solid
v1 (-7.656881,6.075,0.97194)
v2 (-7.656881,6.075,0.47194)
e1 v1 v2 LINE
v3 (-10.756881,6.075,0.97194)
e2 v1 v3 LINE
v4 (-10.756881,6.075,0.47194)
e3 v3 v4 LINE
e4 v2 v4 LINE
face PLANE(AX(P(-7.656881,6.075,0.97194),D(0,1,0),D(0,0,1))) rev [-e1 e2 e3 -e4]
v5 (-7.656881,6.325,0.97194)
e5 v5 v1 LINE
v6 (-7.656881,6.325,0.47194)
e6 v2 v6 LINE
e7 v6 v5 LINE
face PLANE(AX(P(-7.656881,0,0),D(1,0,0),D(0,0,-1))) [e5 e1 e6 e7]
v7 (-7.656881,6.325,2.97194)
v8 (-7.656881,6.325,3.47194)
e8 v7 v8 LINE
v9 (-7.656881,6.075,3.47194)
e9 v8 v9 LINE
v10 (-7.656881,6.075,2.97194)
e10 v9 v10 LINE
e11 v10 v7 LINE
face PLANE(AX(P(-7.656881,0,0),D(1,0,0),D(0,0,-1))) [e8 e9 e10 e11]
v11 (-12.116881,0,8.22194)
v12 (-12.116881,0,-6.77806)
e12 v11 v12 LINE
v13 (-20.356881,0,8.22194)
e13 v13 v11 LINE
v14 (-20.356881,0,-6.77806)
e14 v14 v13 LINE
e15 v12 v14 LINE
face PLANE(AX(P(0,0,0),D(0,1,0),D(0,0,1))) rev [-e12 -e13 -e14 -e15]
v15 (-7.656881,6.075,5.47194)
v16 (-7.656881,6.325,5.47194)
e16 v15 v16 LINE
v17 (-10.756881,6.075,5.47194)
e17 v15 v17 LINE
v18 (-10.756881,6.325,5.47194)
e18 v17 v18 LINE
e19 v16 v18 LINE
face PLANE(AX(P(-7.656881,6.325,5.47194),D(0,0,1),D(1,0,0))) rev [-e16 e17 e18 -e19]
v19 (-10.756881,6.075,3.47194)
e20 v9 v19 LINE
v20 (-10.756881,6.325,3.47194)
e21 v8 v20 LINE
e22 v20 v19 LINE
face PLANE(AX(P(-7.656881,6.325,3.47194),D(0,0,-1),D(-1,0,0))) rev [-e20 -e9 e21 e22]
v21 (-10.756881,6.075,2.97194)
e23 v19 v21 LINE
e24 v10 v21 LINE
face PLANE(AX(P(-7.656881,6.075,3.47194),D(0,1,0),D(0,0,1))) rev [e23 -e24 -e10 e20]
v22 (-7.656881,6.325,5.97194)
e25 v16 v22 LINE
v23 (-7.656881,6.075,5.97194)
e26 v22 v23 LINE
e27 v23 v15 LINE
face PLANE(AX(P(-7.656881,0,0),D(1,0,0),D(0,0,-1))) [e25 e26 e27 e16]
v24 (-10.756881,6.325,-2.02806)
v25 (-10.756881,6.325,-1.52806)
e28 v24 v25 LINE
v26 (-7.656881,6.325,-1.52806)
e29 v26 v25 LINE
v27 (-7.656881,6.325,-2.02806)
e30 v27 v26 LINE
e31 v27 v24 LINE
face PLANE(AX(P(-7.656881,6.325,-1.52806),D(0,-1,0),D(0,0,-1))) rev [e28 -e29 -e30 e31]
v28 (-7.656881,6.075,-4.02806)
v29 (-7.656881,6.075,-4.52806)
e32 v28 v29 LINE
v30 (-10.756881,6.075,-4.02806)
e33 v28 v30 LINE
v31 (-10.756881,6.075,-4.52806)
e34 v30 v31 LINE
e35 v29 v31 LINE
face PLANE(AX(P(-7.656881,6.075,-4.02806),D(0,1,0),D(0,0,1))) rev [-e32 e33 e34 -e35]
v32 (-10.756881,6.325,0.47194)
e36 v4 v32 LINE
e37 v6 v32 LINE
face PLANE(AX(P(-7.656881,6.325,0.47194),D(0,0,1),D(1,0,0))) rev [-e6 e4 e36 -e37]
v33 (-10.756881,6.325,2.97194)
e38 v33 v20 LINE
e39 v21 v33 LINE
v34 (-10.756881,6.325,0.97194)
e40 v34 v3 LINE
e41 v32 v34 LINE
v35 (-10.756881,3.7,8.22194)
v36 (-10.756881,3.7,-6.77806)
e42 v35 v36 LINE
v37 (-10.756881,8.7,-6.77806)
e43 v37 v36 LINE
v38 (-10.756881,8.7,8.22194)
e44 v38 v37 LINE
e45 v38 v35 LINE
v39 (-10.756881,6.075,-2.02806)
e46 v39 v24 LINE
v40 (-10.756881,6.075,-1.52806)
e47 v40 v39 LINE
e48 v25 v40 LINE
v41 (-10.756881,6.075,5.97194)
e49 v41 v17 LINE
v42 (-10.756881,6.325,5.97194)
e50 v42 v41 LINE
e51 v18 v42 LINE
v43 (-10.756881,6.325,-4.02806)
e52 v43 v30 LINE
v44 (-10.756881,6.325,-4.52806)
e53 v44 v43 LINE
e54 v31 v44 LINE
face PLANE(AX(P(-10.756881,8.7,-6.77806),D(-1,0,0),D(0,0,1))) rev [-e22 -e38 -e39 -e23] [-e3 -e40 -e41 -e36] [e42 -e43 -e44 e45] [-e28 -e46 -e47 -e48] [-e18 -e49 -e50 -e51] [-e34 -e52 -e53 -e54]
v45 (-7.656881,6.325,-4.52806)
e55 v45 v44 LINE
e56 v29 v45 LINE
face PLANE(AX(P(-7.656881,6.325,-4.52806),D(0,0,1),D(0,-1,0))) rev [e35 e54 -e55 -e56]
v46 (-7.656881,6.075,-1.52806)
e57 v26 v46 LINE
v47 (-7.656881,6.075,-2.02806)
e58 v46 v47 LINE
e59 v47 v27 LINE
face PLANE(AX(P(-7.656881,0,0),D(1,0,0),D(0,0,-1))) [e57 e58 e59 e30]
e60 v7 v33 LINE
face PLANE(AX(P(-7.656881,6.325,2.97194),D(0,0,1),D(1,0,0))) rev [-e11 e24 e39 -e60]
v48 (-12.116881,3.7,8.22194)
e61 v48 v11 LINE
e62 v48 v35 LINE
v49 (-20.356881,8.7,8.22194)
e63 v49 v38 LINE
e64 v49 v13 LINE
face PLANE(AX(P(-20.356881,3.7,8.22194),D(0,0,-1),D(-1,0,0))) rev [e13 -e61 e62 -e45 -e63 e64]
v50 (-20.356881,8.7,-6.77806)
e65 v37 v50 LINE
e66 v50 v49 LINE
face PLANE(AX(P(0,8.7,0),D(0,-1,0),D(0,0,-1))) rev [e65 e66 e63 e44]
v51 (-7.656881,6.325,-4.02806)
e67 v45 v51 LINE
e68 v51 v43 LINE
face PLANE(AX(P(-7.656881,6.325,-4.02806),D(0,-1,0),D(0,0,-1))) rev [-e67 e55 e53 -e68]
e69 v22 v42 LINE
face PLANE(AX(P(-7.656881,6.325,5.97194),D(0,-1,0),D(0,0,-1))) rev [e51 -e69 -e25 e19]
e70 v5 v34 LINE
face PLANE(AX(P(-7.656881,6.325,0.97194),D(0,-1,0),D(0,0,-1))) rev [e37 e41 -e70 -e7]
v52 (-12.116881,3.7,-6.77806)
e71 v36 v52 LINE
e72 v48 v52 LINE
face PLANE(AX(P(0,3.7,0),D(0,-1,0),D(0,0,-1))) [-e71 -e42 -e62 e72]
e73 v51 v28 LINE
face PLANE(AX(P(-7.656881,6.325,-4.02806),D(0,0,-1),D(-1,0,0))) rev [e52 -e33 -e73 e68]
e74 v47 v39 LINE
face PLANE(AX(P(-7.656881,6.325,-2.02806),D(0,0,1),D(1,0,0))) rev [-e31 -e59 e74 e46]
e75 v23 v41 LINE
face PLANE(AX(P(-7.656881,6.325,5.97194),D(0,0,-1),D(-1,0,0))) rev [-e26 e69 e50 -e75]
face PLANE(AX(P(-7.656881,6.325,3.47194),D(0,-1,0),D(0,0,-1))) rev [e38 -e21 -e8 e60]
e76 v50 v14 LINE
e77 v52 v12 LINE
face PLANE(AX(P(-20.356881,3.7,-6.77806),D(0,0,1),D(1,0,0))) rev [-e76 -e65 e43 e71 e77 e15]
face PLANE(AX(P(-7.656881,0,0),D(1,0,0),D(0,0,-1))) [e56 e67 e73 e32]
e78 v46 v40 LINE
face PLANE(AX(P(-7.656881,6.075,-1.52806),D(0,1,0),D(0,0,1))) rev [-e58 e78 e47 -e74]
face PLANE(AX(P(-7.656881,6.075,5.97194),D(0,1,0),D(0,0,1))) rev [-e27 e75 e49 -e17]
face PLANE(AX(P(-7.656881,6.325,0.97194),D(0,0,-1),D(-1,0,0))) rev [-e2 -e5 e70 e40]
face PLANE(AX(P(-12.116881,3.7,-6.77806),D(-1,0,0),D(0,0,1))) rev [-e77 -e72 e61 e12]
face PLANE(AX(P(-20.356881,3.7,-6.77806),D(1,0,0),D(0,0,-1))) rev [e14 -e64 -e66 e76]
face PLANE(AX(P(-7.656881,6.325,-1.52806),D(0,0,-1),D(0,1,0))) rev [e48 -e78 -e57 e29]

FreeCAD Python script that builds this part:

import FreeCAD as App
import Part
import Sketcher
Q = App.Units.Quantity


def add_polygon(sketch, points):
    """Adds a closed chain of lines whose ends are joined by coincident constraints."""
    first, n = sketch.GeometryCount, len(points)
    for a, b in zip(points, points[1:] + points[:1]):
        sketch.addGeometry(Part.LineSegment(App.Vector(*a, 0), App.Vector(*b, 0)), False)
    for i in range(n):
        sketch.addConstraint(Sketcher.Constraint("Coincident", first + i, 2, first + (i + 1) % n, 1))

doc = App.newDocument("Part")
body = doc.addObject("PartDesign::Body", "Body")

sketch1 = doc.addObject("Sketcher::SketchObject", "Sketch")
body.addObject(sketch1)
sketch1.AttachmentSupport = (doc.XZ_Plane, [""])
sketch1.MapMode = "FlatFace"
add_polygon(sketch1, [(-20, -7), (-20, 8), (-12, 8), (-12, -7)])
sketch1.addConstraint(Sketcher.Constraint("Vertical", 0))
sketch1.addConstraint(Sketcher.Constraint("Horizontal", 1))
sketch1.addConstraint(Sketcher.Constraint("Vertical", 2))
sketch1.addConstraint(Sketcher.Constraint("Horizontal", 3))
sketch1.addConstraint(Sketcher.Constraint("DistanceY", 0, 1, 0, 2, Q("15 mm")))
sketch1.addConstraint(Sketcher.Constraint("DistanceX", 1, 1, 1, 2, Q("8.24 mm")))
sketch1.addConstraint(Sketcher.Constraint("DistanceX", 0, 2, -1, 1, Q("20.356881 mm")))
sketch1.addConstraint(Sketcher.Constraint("DistanceY", -1, 1, 0, 2, Q("8.22194 mm")))
pad1 = doc.addObject("PartDesign::Pad", "Pad")
body.addObject(pad1)
pad1.Profile = sketch1
pad1.Length = 3.7
pad1.Reversed = True

sketch2 = doc.addObject("Sketcher::SketchObject", "Sketch001")
body.addObject(sketch2)
sketch2.AttachmentSupport = (doc.XZ_Plane, [""])
sketch2.MapMode = "FlatFace"
sketch2.AttachmentOffset = App.Placement(App.Vector(0, 0, -3.7), App.Rotation())
add_polygon(sketch2, [(-20, 8), (-11, 8), (-11, -7), (-20, -7)])
sketch2.addConstraint(Sketcher.Constraint("Horizontal", 0))
sketch2.addConstraint(Sketcher.Constraint("Vertical", 1))
sketch2.addConstraint(Sketcher.Constraint("Horizontal", 2))
sketch2.addConstraint(Sketcher.Constraint("Vertical", 3))
sketch2.addConstraint(Sketcher.Constraint("DistanceY", 1, 2, 1, 1, Q("15 mm")))
sketch2.addConstraint(Sketcher.Constraint("DistanceX", 0, 1, 0, 2, Q("9.6 mm")))
sketch2.addConstraint(Sketcher.Constraint("DistanceX", 0, 2, -1, 1, Q("10.756881 mm")))
sketch2.addConstraint(Sketcher.Constraint("DistanceY", -1, 1, 0, 2, Q("8.22194 mm")))
pad2 = doc.addObject("PartDesign::Pad", "Pad001")
body.addObject(pad2)
pad2.Profile = sketch2
pad2.Length = 5
pad2.Reversed = True

sketch3 = doc.addObject("Sketcher::SketchObject", "Sketch002")
body.addObject(sketch3)
sketch3.AttachmentSupport = (doc.YZ_Plane, [""])
sketch3.MapMode = "FlatFace"
sketch3.AttachmentOffset = App.Placement(App.Vector(0, 0, -10.756881), App.Rotation())
add_polygon(sketch3, [(6.33, 5.97), (6.08, 5.97), (6.08, 5.47), (6.33, 5.47)])
add_polygon(sketch3, [(6.33, 3.47), (6.08, 3.47), (6.08, 2.97), (6.33, 2.97)])
add_polygon(sketch3, [(6.33, 0.97), (6.08, 0.97), (6.08, 0.47), (6.33, 0.47)])
add_polygon(sketch3, [(6.33, -1.53), (6.08, -1.53), (6.08, -2.03), (6.33, -2.03)])
add_polygon(sketch3, [(6.33, -4.03), (6.08, -4.03), (6.08, -4.53), (6.33, -4.53)])
sketch3.addConstraint(Sketcher.Constraint("Horizontal", 0))
sketch3.addConstraint(Sketcher.Constraint("Vertical", 1))
sketch3.addConstraint(Sketcher.Constraint("Horizontal", 2))
sketch3.addConstraint(Sketcher.Constraint("Vertical", 3))
sketch3.addConstraint(Sketcher.Constraint("Horizontal", 4))
sketch3.addConstraint(Sketcher.Constraint("Vertical", 5))
sketch3.addConstraint(Sketcher.Constraint("Horizontal", 6))
sketch3.addConstraint(Sketcher.Constraint("Vertical", 7))
sketch3.addConstraint(Sketcher.Constraint("Horizontal", 8))
sketch3.addConstraint(Sketcher.Constraint("Vertical", 9))
sketch3.addConstraint(Sketcher.Constraint("Horizontal", 10))
sketch3.addConstraint(Sketcher.Constraint("Vertical", 11))
sketch3.addConstraint(Sketcher.Constraint("Horizontal", 12))
sketch3.addConstraint(Sketcher.Constraint("Vertical", 13))
sketch3.addConstraint(Sketcher.Constraint("Horizontal", 14))
sketch3.addConstraint(Sketcher.Constraint("Vertical", 15))
sketch3.addConstraint(Sketcher.Constraint("Horizontal", 16))
sketch3.addConstraint(Sketcher.Constraint("Vertical", 17))
sketch3.addConstraint(Sketcher.Constraint("Horizontal", 18))
sketch3.addConstraint(Sketcher.Constraint("Vertical", 19))
sketch3.addConstraint(Sketcher.Constraint("Vertical", 1, 2, 4, 2))
sketch3.addConstraint(Sketcher.Constraint("Vertical", 3, 2, 6, 2))
sketch3.addConstraint(Sketcher.Constraint("Vertical", 5, 2, 8, 2))
sketch3.addConstraint(Sketcher.Constraint("Vertical", 7, 2, 10, 2))
sketch3.addConstraint(Sketcher.Constraint("Vertical", 9, 2, 12, 2))
sketch3.addConstraint(Sketcher.Constraint("Vertical", 11, 2, 14, 2))
sketch3.addConstraint(Sketcher.Constraint("Vertical", 13, 2, 16, 2))
sketch3.addConstraint(Sketcher.Constraint("Vertical", 15, 2, 18, 2))
sketch3.addConstraint(Sketcher.Constraint("Equal", 3, 5))
sketch3.addConstraint(Sketcher.Constraint("Equal", 7, 9))
sketch3.addConstraint(Sketcher.Constraint("Equal", 11, 13))
sketch3.addConstraint(Sketcher.Constraint("Equal", 15, 17))
sketch3.addConstraint(Sketcher.Constraint("DistanceY", 1, 2, 1, 1, Q("0.5 mm")))
sketch3.addConstraint(Sketcher.Constraint("DistanceY", 4, 2, 1, 2, Q("2 mm")))
sketch3.addConstraint(Sketcher.Constraint("DistanceY", 8, 2, 5, 2, Q("2 mm")))
sketch3.addConstraint(Sketcher.Constraint("DistanceY", 12, 2, 9, 2, Q("2 mm")))
sketch3.addConstraint(Sketcher.Constraint("DistanceY", 16, 2, 13, 2, Q("2 mm")))
sketch3.addConstraint(Sketcher.Constraint("DistanceX", 0, 2, 0, 1, Q("0.25 mm")))
sketch3.addConstraint(Sketcher.Constraint("DistanceX", -1, 1, 0, 2, Q("6.075 mm")))
sketch3.addConstraint(Sketcher.Constraint("DistanceY", -1, 1, 0, 2, Q("5.97194 mm")))
pad3 = doc.addObject("PartDesign::Pad", "Pad002")
body.addObject(pad3)
pad3.Profile = sketch3
pad3.Length = 3.1

doc.recompute()
